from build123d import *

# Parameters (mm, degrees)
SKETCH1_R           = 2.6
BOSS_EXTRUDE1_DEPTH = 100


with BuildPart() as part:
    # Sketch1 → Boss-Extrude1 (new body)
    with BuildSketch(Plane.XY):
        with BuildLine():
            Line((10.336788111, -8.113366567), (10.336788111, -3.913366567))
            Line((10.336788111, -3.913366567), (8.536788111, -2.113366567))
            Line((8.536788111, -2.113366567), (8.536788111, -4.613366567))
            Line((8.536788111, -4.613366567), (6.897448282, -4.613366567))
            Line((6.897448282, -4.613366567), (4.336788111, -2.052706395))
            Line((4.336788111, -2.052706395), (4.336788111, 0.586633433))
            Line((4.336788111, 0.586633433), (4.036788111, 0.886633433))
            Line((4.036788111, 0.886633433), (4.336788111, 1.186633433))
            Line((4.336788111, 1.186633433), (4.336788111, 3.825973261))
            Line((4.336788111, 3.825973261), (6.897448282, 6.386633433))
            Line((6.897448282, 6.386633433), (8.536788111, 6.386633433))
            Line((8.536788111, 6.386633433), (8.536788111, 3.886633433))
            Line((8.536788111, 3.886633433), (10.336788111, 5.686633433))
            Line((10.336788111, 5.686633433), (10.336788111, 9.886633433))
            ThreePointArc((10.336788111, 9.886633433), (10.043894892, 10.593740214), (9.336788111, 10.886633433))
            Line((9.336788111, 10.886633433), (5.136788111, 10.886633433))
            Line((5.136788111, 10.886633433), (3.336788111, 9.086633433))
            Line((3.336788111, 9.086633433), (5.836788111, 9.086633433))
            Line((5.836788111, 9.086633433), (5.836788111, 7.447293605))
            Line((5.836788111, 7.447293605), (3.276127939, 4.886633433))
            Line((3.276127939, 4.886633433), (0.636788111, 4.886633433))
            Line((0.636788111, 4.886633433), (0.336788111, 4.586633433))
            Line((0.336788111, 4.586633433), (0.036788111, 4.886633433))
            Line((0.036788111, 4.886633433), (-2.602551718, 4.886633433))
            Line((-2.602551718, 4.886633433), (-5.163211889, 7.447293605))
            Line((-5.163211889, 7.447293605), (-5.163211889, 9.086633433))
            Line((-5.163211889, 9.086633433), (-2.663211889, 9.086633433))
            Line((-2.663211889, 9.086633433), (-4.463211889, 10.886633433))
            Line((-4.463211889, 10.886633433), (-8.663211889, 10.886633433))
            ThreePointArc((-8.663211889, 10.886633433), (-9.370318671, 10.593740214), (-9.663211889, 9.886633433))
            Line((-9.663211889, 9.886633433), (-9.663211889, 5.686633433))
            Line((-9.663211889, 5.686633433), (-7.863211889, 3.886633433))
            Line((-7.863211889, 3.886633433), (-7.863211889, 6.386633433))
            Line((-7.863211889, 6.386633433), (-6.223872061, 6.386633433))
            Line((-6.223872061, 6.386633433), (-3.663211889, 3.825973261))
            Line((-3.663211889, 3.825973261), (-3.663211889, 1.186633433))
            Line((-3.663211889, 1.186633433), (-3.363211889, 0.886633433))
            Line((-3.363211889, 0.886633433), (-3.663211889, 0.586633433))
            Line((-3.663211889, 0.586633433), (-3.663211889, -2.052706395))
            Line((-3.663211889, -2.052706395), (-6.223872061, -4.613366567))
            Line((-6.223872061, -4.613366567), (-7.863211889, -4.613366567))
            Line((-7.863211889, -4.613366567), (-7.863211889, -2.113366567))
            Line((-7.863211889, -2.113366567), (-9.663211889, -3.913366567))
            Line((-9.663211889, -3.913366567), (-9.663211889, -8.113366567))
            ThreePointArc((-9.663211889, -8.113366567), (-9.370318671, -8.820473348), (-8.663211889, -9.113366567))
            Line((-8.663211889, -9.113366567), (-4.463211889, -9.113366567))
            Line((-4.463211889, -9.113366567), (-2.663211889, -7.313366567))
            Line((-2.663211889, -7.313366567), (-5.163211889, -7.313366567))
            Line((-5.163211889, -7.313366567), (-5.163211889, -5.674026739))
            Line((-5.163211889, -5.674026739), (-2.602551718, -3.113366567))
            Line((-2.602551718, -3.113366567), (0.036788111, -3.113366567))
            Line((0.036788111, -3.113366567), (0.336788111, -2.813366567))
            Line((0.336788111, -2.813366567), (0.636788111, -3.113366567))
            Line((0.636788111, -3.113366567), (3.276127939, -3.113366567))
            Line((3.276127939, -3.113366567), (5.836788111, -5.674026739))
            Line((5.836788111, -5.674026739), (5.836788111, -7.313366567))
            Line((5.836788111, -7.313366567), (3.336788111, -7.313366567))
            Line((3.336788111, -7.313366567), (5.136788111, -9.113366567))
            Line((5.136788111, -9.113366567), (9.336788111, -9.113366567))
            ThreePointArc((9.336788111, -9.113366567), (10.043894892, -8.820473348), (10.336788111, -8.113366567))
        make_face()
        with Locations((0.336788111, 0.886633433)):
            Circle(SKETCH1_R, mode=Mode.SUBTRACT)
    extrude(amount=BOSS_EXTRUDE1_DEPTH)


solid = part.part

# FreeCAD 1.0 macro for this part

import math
import FreeCAD as App
import Part
import Sketcher
from FreeCAD import Vector

doc = App.newDocument("Part")
body = doc.addObject("PartDesign::Body", "Body")

# Sketch on XY plane
sketch1 = doc.addObject("Sketcher::SketchObject", "Sketch")
body.addObject(sketch1)
sketch1.AttachmentSupport = (doc.XY_Plane, [""])
sketch1.MapMode = "FlatFace"
sketch1.addGeometry([
    Part.LineSegment(Vector(10.34, -8.11, 0), Vector(10.34, -3.91, 0)),  # 0
    Part.LineSegment(Vector(10.34, -3.91, 0), Vector(8.54, -2.11, 0)),  # 1
    Part.LineSegment(Vector(8.54, -2.11, 0), Vector(8.54, -4.61, 0)),  # 2
    Part.LineSegment(Vector(8.54, -4.61, 0), Vector(6.9, -4.61, 0)),  # 3
    Part.LineSegment(Vector(6.9, -4.61, 0), Vector(4.34, -2.05, 0)),  # 4
    Part.LineSegment(Vector(4.34, -2.05, 0), Vector(4.34, 0.59, 0)),  # 5
    Part.LineSegment(Vector(4.34, 0.59, 0), Vector(4.04, 0.89, 0)),  # 6
    Part.LineSegment(Vector(4.04, 0.89, 0), Vector(4.34, 1.19, 0)),  # 7
    Part.LineSegment(Vector(4.34, 1.19, 0), Vector(4.34, 3.83, 0)),  # 8
    Part.LineSegment(Vector(4.34, 3.83, 0), Vector(6.9, 6.39, 0)),  # 9
    Part.LineSegment(Vector(6.9, 6.39, 0), Vector(8.54, 6.39, 0)),  # 10
    Part.LineSegment(Vector(8.54, 6.39, 0), Vector(8.54, 3.89, 0)),  # 11
    Part.LineSegment(Vector(8.54, 3.89, 0), Vector(10.34, 5.69, 0)),  # 12
    Part.LineSegment(Vector(10.34, 5.69, 0), Vector(10.34, 9.89, 0)),  # 13
    Part.ArcOfCircle(Part.Circle(Vector(9.34, 9.89, 0), Vector(0, 0, 1), 1), math.radians(0), math.radians(90)),  # 14
    Part.LineSegment(Vector(9.34, 10.89, 0), Vector(5.14, 10.89, 0)),  # 15
    Part.LineSegment(Vector(5.14, 10.89, 0), Vector(3.34, 9.09, 0)),  # 16
    Part.LineSegment(Vector(3.34, 9.09, 0), Vector(5.84, 9.09, 0)),  # 17
    Part.LineSegment(Vector(5.84, 9.09, 0), Vector(5.84, 7.45, 0)),  # 18
    Part.LineSegment(Vector(5.84, 7.45, 0), Vector(3.28, 4.89, 0)),  # 19
    Part.LineSegment(Vector(3.28, 4.89, 0), Vector(0.64, 4.89, 0)),  # 20
    Part.LineSegment(Vector(0.64, 4.89, 0), Vector(0.34, 4.59, 0)),  # 21
    Part.LineSegment(Vector(0.34, 4.59, 0), Vector(0.04, 4.89, 0)),  # 22
    Part.LineSegment(Vector(0.04, 4.89, 0), Vector(-2.6, 4.89, 0)),  # 23
    Part.LineSegment(Vector(-2.6, 4.89, 0), Vector(-5.16, 7.45, 0)),  # 24
    Part.LineSegment(Vector(-5.16, 7.45, 0), Vector(-5.16, 9.09, 0)),  # 25
    Part.LineSegment(Vector(-5.16, 9.09, 0), Vector(-2.66, 9.09, 0)),  # 26
    Part.LineSegment(Vector(-2.66, 9.09, 0), Vector(-4.46, 10.89, 0)),  # 27
    Part.LineSegment(Vector(-4.46, 10.89, 0), Vector(-8.66, 10.89, 0)),  # 28
    Part.ArcOfCircle(Part.Circle(Vector(-8.66, 9.89, 0), Vector(0, 0, 1), 1), math.radians(90), math.radians(180)),  # 29
    Part.LineSegment(Vector(-9.66, 9.89, 0), Vector(-9.66, 5.69, 0)),  # 30
    Part.LineSegment(Vector(-9.66, 5.69, 0), Vector(-7.86, 3.89, 0)),  # 31
    Part.LineSegment(Vector(-7.86, 3.89, 0), Vector(-7.86, 6.39, 0)),  # 32
    Part.LineSegment(Vector(-7.86, 6.39, 0), Vector(-6.22, 6.39, 0)),  # 33
    Part.LineSegment(Vector(-6.22, 6.39, 0), Vector(-3.66, 3.83, 0)),  # 34
    Part.LineSegment(Vector(-3.66, 3.83, 0), Vector(-3.66, 1.19, 0)),  # 35
    Part.LineSegment(Vector(-3.66, 1.19, 0), Vector(-3.36, 0.89, 0)),  # 36
    Part.LineSegment(Vector(-3.36, 0.89, 0), Vector(-3.66, 0.59, 0)),  # 37
    Part.LineSegment(Vector(-3.66, 0.59, 0), Vector(-3.66, -2.05, 0)),  # 38
    Part.LineSegment(Vector(-3.66, -2.05, 0), Vector(-6.22, -4.61, 0)),  # 39
    Part.LineSegment(Vector(-6.22, -4.61, 0), Vector(-7.86, -4.61, 0)),  # 40
    Part.LineSegment(Vector(-7.86, -4.61, 0), Vector(-7.86, -2.11, 0)),  # 41
    Part.LineSegment(Vector(-7.86, -2.11, 0), Vector(-9.66, -3.91, 0)),  # 42
    Part.LineSegment(Vector(-9.66, -3.91, 0), Vector(-9.66, -8.11, 0)),  # 43
    Part.ArcOfCircle(Part.Circle(Vector(-8.66, -8.11, 0), Vector(0, 0, 1), 1), math.radians(180), math.radians(270)),  # 44
    Part.LineSegment(Vector(-8.66, -9.11, 0), Vector(-4.46, -9.11, 0)),  # 45
    Part.LineSegment(Vector(-4.46, -9.11, 0), Vector(-2.66, -7.31, 0)),  # 46
    Part.LineSegment(Vector(-2.66, -7.31, 0), Vector(-5.16, -7.31, 0)),  # 47
    Part.LineSegment(Vector(-5.16, -7.31, 0), Vector(-5.16, -5.67, 0)),  # 48
    Part.LineSegment(Vector(-5.16, -5.67, 0), Vector(-2.6, -3.11, 0)),  # 49
    Part.LineSegment(Vector(-2.6, -3.11, 0), Vector(0.04, -3.11, 0)),  # 50
    Part.LineSegment(Vector(0.04, -3.11, 0), Vector(0.34, -2.81, 0)),  # 51
    Part.LineSegment(Vector(0.34, -2.81, 0), Vector(0.64, -3.11, 0)),  # 52
    Part.LineSegment(Vector(0.64, -3.11, 0), Vector(3.28, -3.11, 0)),  # 53
    Part.LineSegment(Vector(3.28, -3.11, 0), Vector(5.84, -5.67, 0)),  # 54
    Part.LineSegment(Vector(5.84, -5.67, 0), Vector(5.84, -7.31, 0)),  # 55
    Part.LineSegment(Vector(5.84, -7.31, 0), Vector(3.34, -7.31, 0)),  # 56
    Part.LineSegment(Vector(3.34, -7.31, 0), Vector(5.14, -9.11, 0)),  # 57
    Part.LineSegment(Vector(5.14, -9.11, 0), Vector(9.34, -9.11, 0)),  # 58
    Part.ArcOfCircle(Part.Circle(Vector(9.34, -8.11, 0), Vector(0, 0, 1), 1), math.radians(-90), math.radians(0)),  # 59
    Part.Circle(Vector(0.34, 0.89, 0), Vector(0, 0, 1), 2.6),  # 60
], False)
sketch1.addConstraint([
    Sketcher.Constraint("Coincident", 0, 2, 1, 1),
    Sketcher.Constraint("Coincident", 1, 2, 2, 1),
    Sketcher.Constraint("Coincident", 2, 2, 3, 1),
    Sketcher.Constraint("Coincident", 3, 2, 4, 1),
    Sketcher.Constraint("Coincident", 4, 2, 5, 1),
    Sketcher.Constraint("Coincident", 5, 2, 6, 1),
    Sketcher.Constraint("Coincident", 6, 2, 7, 1),
    Sketcher.Constraint("Coincident", 7, 2, 8, 1),
    Sketcher.Constraint("Coincident", 8, 2, 9, 1),
    Sketcher.Constraint("Coincident", 9, 2, 10, 1),
    Sketcher.Constraint("Coincident", 10, 2, 11, 1),
    Sketcher.Constraint("Coincident", 11, 2, 12, 1),
    Sketcher.Constraint("Coincident", 12, 2, 13, 1),
    Sketcher.Constraint("Tangent", 13, 2, 14, 1),
    Sketcher.Constraint("Tangent", 14, 2, 15, 1),
    Sketcher.Constraint("Coincident", 15, 2, 16, 1),
    Sketcher.Constraint("Coincident", 16, 2, 17, 1),
    Sketcher.Constraint("Coincident", 17, 2, 18, 1),
    Sketcher.Constraint("Coincident", 18, 2, 19, 1),
    Sketcher.Constraint("Coincident", 19, 2, 20, 1),
    Sketcher.Constraint("Coincident", 20, 2, 21, 1),
    Sketcher.Constraint("Coincident", 21, 2, 22, 1),
    Sketcher.Constraint("Coincident", 22, 2, 23, 1),
    Sketcher.Constraint("Coincident", 23, 2, 24, 1),
    Sketcher.Constraint("Coincident", 24, 2, 25, 1),
    Sketcher.Constraint("Coincident", 25, 2, 26, 1),
    Sketcher.Constraint("Coincident", 26, 2, 27, 1),
    Sketcher.Constraint("Coincident", 27, 2, 28, 1),
    Sketcher.Constraint("Tangent", 28, 2, 29, 1),
    Sketcher.Constraint("Tangent", 29, 2, 30, 1),
    Sketcher.Constraint("Coincident", 30, 2, 31, 1),
    Sketcher.Constraint("Coincident", 31, 2, 32, 1),
    Sketcher.Constraint("Coincident", 32, 2, 33, 1),
    Sketcher.Constraint("Coincident", 33, 2, 34, 1),
    Sketcher.Constraint("Coincident", 34, 2, 35, 1),
    Sketcher.Constraint("Coincident", 35, 2, 36, 1),
    Sketcher.Constraint("Coincident", 36, 2, 37, 1),
    Sketcher.Constraint("Coincident", 37, 2, 38, 1),
    Sketcher.Constraint("Coincident", 38, 2, 39, 1),
    Sketcher.Constraint("Coincident", 39, 2, 40, 1),
    Sketcher.Constraint("Coincident", 40, 2, 41, 1),
    Sketcher.Constraint("Coincident", 41, 2, 42, 1),
    Sketcher.Constraint("Coincident", 42, 2, 43, 1),
    Sketcher.Constraint("Tangent", 43, 2, 44, 1),
    Sketcher.Constraint("Tangent", 44, 2, 45, 1),
    Sketcher.Constraint("Coincident", 45, 2, 46, 1),
    Sketcher.Constraint("Coincident", 46, 2, 47, 1),
    Sketcher.Constraint("Coincident", 47, 2, 48, 1),
    Sketcher.Constraint("Coincident", 48, 2, 49, 1),
    Sketcher.Constraint("Coincident", 49, 2, 50, 1),
    Sketcher.Constraint("Coincident", 50, 2, 51, 1),
    Sketcher.Constraint("Coincident", 51, 2, 52, 1),
    Sketcher.Constraint("Coincident", 52, 2, 53, 1),
    Sketcher.Constraint("Coincident", 53, 2, 54, 1),
    Sketcher.Constraint("Coincident", 54, 2, 55, 1),
    Sketcher.Constraint("Coincident", 55, 2, 56, 1),
    Sketcher.Constraint("Coincident", 56, 2, 57, 1),
    Sketcher.Constraint("Coincident", 57, 2, 58, 1),
    Sketcher.Constraint("Tangent", 58, 2, 59, 1),
    Sketcher.Constraint("Tangent", 59, 2, 0, 1),
    Sketcher.Constraint("Vertical", 0),
    Sketcher.Constraint("Vertical", 2),
    Sketcher.Constraint("Horizontal", 3),
    Sketcher.Constraint("Vertical", 5),
    Sketcher.Constraint("Vertical", 8),
    Sketcher.Constraint("Horizontal", 10),
    Sketcher.Constraint("Vertical", 11),
    Sketcher.Constraint("Vertical", 13),
    Sketcher.Constraint("Horizontal", 15),
    Sketcher.Constraint("Horizontal", 17),
    Sketcher.Constraint("Vertical", 18),
    Sketcher.Constraint("Horizontal", 20),
    Sketcher.Constraint("Horizontal", 23),
    Sketcher.Constraint("Vertical", 25),
    Sketcher.Constraint("Horizontal", 26),
    Sketcher.Constraint("Horizontal", 28),
    Sketcher.Constraint("Vertical", 30),
    Sketcher.Constraint("Vertical", 32),
    Sketcher.Constraint("Horizontal", 33),
    Sketcher.Constraint("Vertical", 35),
    Sketcher.Constraint("Vertical", 38),
    Sketcher.Constraint("Horizontal", 40),
    Sketcher.Constraint("Vertical", 41),
    Sketcher.Constraint("Vertical", 43),
    Sketcher.Constraint("Horizontal", 45),
    Sketcher.Constraint("Horizontal", 47),
    Sketcher.Constraint("Vertical", 48),
    Sketcher.Constraint("Horizontal", 50),
    Sketcher.Constraint("Horizontal", 53),
    Sketcher.Constraint("Vertical", 55),
    Sketcher.Constraint("Horizontal", 56),
    Sketcher.Constraint("Horizontal", 58),
    Sketcher.Constraint("Equal", 14, 29),
    Sketcher.Constraint("Equal", 29, 44),
    Sketcher.Constraint("Equal", 44, 59),
    Sketcher.Constraint("Parallel", 1, 4),
    Sketcher.Constraint("Parallel", 4, 6),
    Sketcher.Constraint("Perpendicular", 6, 7),
    Sketcher.Constraint("Parallel", 7, 9),
    Sketcher.Constraint("Parallel", 9, 12),
    Sketcher.Constraint("Parallel", 12, 16),
    Sketcher.Constraint("Parallel", 16, 19),
    Sketcher.Constraint("Parallel", 19, 21),
    Sketcher.Constraint("Perpendicular", 21, 22),
    Sketcher.Constraint("Parallel", 22, 24),
    Sketcher.Constraint("Parallel", 24, 27),
    Sketcher.Constraint("Parallel", 27, 31),
    Sketcher.Constraint("Parallel", 31, 34),
    Sketcher.Constraint("Parallel", 34, 36),
    Sketcher.Constraint("Perpendicular", 36, 37),
    Sketcher.Constraint("Parallel", 37, 39),
    Sketcher.Constraint("Parallel", 39, 42),
    Sketcher.Constraint("Parallel", 42, 46),
    Sketcher.Constraint("Parallel", 46, 49),
    Sketcher.Constraint("Parallel", 49, 51),
    Sketcher.Constraint("Perpendicular", 51, 52),
    Sketcher.Constraint("Parallel", 52, 54),
    Sketcher.Constraint("Parallel", 54, 57),
    Sketcher.Constraint("Horizontal", 14, 3, 29, 3),
    Sketcher.Constraint("Horizontal", 44, 3, 59, 3),
    Sketcher.Constraint("Horizontal", 60, 3, 6, 2),
    Sketcher.Constraint("Horizontal", 20, 2, 22, 2),
    Sketcher.Constraint("Horizontal", 18, 2, 24, 2),
    Sketcher.Constraint("Horizontal", 17, 2, 25, 2),
    Sketcher.Constraint("Horizontal", 12, 2, 30, 2),
    Sketcher.Constraint("Horizontal", 11, 2, 31, 2),
    Sketcher.Constraint("Horizontal", 10, 2, 32, 2),
    Sketcher.Constraint("Horizontal", 8, 2, 34, 2),
    Sketcher.Constraint("Horizontal", 7, 2, 35, 2),
    Sketcher.Constraint("Horizontal", 6, 2, 36, 2),
    Sketcher.Constraint("Horizontal", 5, 2, 37, 2),
    Sketcher.Constraint("Horizontal", 4, 2, 38, 2),
    Sketcher.Constraint("Horizontal", 3, 2, 39, 2),
    Sketcher.Constraint("Horizontal", 1, 2, 41, 2),
    Sketcher.Constraint("Horizontal", 0, 2, 42, 2),
    Sketcher.Constraint("Horizontal", 50, 2, 52, 2),
    Sketcher.Constraint("Horizontal", 48, 2, 54, 2),
    Sketcher.Constraint("Horizontal", 47, 2, 55, 2),
    Sketcher.Constraint("Vertical", 29, 3, 44, 3),
    Sketcher.Constraint("Vertical", 14, 3, 59, 3),
    Sketcher.Constraint("Vertical", 5, 2, 7, 2),
    Sketcher.Constraint("Vertical", 3, 2, 9, 2),
    Sketcher.Constraint("Vertical", 2, 2, 10, 2),
    Sketcher.Constraint("Vertical", 60, 3, 21, 2),
    Sketcher.Constraint("Vertical", 35, 2, 37, 2),
    Sketcher.Constraint("Vertical", 27, 2, 45, 2),
    Sketcher.Constraint("Vertical", 26, 2, 46, 2),
    Sketcher.Constraint("Vertical", 25, 2, 47, 2),
    Sketcher.Constraint("Vertical", 23, 2, 49, 2),
    Sketcher.Constraint("Vertical", 22, 2, 50, 2),
    Sketcher.Constraint("Vertical", 21, 2, 51, 2),
    Sketcher.Constraint("Vertical", 19, 2, 53, 2),
    Sketcher.Constraint("Vertical", 16, 2, 56, 2),
    Sketcher.Constraint("Equal", 20, 23),
    Sketcher.Constraint("Equal", 17, 26),
    Sketcher.Constraint("Equal", 15, 28),
    Sketcher.Constraint("Equal", 10, 33),
    Sketcher.Constraint("Equal", 58, 0),
    Sketcher.Constraint("Equal", 56, 2),
    Sketcher.Constraint("Equal", 53, 5),
    Sketcher.Constraint("Equal", 5, 8),
    Sketcher.Constraint("Equal", 2, 11),
    Sketcher.Constraint("Equal", 0, 13),
    Sketcher.Constraint("Equal", 40, 18),
    Sketcher.Constraint("Equal", 25, 48),
    Sketcher.Constraint("Equal", 12, 16),
    Sketcher.Constraint("Equal", 9, 19),
    Sketcher.Constraint("Equal", 7, 21),
    Sketcher.Constraint("Radius", 14, 1.0),
    Sketcher.Constraint("Diameter", 60, 5.2),
    Sketcher.Constraint("DistanceX", 15, 2, 15, 1, 4.2),
    Sketcher.Constraint("DistanceX", 17, 1, 17, 2, 2.5),
    Sketcher.Constraint("DistanceX", 3, 2, 3, 1, 1.63934),
    Sketcher.Constraint("DistanceX", 20, 2, 20, 1, 2.63934),
    Sketcher.Constraint("Distance", 4, 3.62132),
    Sketcher.Constraint("DistanceX", -1, 1, 14, 3, 9.336788),
    Sketcher.Constraint("DistanceX", 29, 3, -1, 1, 8.663212),
    Sketcher.Constraint("DistanceX", -1, 1, 1, 2, 8.536788),
    Sketcher.Constraint("DistanceY", -1, 1, 14, 3, 9.886633),
])
pad1 = doc.addObject("PartDesign::Pad", "Pad")
body.addObject(pad1)
pad1.Profile = sketch1
pad1.Length = 100

doc.recompute()
